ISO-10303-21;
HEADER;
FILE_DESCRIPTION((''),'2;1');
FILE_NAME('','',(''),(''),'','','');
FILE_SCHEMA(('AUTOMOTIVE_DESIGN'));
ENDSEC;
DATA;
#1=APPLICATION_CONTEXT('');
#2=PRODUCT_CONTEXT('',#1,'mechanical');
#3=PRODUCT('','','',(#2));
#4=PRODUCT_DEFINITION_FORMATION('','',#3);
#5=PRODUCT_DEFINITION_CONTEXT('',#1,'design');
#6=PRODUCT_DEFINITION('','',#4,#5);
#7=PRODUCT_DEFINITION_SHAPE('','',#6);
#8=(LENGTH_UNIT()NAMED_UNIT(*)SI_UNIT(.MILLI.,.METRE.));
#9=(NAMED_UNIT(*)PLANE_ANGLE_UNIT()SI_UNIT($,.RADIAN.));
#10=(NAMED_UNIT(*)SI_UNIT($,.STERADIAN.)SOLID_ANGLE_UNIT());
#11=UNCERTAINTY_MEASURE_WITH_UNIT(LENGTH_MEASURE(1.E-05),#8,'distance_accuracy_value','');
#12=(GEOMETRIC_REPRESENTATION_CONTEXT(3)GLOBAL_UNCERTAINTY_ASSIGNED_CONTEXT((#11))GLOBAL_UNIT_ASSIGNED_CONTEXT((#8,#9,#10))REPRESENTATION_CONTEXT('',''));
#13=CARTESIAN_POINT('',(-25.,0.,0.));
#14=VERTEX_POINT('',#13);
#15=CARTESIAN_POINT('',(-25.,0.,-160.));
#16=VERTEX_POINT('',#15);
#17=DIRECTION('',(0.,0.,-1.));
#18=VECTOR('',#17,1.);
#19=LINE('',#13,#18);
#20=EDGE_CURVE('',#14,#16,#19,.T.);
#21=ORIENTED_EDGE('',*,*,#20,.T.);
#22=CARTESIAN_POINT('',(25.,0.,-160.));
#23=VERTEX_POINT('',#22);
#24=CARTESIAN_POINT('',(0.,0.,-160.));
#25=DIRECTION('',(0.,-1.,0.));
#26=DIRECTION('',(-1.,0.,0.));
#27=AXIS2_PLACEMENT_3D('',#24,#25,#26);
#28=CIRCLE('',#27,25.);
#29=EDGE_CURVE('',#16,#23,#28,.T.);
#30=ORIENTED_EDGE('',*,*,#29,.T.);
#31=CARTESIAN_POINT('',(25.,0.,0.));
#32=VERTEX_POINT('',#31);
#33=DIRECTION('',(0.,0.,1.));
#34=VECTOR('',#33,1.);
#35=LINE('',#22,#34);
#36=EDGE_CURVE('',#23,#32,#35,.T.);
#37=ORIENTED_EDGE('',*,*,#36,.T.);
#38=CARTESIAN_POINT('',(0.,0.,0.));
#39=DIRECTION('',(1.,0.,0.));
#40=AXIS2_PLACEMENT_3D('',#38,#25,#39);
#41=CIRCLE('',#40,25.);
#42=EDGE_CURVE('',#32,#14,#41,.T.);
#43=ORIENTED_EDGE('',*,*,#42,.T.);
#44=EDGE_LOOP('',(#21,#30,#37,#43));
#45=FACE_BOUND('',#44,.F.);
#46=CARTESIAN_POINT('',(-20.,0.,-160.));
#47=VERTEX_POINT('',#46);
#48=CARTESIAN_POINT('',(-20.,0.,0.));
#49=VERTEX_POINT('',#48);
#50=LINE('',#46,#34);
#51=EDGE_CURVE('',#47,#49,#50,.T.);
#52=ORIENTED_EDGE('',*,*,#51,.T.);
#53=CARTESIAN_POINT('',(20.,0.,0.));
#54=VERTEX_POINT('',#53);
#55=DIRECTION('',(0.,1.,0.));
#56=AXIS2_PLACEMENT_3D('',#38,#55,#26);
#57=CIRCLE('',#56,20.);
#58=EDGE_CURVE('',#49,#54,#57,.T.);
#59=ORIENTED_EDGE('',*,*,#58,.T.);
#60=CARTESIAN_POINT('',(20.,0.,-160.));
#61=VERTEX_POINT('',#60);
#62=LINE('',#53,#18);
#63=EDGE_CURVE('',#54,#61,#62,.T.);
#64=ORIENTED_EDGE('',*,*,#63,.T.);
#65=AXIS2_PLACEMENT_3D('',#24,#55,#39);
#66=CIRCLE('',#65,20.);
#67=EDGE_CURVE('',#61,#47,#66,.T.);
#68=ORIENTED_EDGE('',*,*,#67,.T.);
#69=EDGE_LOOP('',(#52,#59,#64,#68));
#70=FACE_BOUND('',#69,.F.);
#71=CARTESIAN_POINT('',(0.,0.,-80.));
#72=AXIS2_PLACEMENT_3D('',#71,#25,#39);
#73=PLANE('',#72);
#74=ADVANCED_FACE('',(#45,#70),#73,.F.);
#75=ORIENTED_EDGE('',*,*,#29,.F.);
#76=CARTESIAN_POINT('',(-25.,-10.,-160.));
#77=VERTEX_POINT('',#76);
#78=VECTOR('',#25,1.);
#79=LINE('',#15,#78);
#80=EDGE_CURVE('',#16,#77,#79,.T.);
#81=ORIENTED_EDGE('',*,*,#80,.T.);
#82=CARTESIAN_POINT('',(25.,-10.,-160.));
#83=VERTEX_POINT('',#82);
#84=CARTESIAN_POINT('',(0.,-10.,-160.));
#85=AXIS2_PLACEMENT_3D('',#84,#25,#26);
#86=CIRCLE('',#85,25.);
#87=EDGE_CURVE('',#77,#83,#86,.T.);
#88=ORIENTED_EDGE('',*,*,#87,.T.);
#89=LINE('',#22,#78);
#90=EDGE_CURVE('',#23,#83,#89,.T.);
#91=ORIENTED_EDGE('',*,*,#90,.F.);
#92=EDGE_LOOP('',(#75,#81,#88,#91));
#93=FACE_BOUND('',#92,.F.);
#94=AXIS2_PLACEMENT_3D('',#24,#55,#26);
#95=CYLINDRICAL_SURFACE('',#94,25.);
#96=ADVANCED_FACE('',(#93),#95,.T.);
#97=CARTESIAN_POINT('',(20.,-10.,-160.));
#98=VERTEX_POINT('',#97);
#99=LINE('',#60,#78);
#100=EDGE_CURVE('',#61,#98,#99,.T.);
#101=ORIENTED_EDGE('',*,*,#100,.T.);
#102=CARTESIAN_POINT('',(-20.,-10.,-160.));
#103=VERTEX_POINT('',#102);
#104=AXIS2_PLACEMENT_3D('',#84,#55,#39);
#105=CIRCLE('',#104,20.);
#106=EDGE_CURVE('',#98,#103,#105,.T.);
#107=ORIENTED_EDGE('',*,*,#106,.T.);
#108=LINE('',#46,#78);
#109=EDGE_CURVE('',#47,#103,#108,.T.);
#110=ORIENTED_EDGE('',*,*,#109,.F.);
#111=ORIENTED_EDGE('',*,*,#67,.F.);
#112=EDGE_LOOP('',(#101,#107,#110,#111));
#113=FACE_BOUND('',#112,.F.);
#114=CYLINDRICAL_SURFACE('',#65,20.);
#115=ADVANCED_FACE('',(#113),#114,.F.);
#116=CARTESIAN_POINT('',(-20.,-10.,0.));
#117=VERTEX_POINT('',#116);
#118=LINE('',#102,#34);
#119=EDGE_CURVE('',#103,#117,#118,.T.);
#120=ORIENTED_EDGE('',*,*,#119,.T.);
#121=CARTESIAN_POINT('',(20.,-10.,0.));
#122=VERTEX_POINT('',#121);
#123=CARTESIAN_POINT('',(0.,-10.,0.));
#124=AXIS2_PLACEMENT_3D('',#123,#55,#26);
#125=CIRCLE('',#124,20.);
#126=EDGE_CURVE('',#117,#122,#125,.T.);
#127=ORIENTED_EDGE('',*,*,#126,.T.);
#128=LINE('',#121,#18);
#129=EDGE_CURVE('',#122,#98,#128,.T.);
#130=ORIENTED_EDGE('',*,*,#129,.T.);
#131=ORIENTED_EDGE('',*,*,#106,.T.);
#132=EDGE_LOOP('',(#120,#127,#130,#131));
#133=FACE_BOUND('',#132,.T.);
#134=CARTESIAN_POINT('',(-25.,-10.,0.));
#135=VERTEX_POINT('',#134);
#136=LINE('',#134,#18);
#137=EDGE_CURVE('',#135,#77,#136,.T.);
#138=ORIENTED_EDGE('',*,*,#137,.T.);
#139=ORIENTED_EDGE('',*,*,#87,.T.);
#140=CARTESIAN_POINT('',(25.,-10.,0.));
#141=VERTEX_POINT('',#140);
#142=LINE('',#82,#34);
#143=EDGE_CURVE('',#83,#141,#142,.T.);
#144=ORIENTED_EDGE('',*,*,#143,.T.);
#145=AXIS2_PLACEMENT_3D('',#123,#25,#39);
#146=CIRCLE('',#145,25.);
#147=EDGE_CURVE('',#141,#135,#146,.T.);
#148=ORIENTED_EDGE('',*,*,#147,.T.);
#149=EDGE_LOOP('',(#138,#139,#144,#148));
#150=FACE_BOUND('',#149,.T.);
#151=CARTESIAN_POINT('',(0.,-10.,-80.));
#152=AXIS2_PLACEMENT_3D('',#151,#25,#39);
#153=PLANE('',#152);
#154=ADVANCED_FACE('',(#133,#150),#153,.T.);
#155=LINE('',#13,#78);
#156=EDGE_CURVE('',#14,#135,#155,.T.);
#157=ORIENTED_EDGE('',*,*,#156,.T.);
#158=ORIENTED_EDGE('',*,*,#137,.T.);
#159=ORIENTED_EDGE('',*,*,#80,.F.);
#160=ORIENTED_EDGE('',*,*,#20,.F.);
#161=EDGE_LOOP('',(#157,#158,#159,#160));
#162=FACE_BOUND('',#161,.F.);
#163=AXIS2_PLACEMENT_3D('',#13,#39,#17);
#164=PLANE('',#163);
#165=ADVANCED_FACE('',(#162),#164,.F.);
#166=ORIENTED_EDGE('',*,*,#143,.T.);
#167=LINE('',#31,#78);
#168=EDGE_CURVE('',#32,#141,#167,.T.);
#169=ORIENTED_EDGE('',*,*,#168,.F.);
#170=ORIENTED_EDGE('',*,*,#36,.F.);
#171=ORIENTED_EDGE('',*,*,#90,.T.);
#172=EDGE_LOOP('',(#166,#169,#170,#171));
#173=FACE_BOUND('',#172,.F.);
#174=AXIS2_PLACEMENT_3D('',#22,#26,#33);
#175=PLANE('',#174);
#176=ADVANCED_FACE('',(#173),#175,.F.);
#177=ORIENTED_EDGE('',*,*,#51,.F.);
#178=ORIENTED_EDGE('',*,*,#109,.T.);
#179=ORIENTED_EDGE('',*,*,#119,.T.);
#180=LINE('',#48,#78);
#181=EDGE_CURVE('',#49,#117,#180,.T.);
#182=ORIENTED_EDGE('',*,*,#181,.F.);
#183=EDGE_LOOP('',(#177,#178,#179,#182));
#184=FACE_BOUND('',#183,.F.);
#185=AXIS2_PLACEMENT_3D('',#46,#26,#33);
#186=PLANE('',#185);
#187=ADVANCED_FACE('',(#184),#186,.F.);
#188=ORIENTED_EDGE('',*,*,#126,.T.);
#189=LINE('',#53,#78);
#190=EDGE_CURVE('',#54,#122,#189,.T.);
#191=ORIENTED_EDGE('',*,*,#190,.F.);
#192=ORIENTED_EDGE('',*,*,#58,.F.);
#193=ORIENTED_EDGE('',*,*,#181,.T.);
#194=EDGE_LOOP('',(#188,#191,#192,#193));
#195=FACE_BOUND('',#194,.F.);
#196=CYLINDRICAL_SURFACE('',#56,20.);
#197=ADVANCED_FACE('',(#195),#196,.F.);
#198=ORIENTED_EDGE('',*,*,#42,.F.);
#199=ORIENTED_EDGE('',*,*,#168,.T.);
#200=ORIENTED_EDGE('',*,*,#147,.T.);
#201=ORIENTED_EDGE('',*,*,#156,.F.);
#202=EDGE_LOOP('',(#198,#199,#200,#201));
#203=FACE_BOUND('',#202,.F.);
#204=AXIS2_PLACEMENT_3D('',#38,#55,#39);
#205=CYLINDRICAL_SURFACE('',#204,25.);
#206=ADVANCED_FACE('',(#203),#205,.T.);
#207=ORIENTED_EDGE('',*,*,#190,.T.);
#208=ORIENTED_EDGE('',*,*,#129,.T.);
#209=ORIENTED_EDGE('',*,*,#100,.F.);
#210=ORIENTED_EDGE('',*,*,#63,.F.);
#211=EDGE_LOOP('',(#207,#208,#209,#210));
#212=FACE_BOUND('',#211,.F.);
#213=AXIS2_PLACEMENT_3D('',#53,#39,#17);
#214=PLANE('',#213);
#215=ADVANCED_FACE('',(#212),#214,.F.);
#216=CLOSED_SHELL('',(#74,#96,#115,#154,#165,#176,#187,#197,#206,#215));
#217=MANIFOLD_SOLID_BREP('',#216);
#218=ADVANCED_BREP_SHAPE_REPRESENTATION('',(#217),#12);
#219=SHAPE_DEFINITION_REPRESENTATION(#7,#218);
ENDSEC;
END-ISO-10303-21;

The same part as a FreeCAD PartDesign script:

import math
import FreeCAD as App
import Part
import Sketcher

V = App.Vector

doc = App.newDocument("Part")
body = doc.addObject("PartDesign::Body", "Body")

sketch1 = body.newObject("Sketcher::SketchObject", "Sketch")
sketch1.AttachmentSupport = (doc.getObject("XZ_Plane"), [""])
sketch1.MapMode = "FlatFace"
sketch1.addGeometry(Part.LineSegment(V(-25, 0, 0), V(-25, -160, 0)), False)
sketch1.addGeometry(Part.ArcOfCircle(Part.Circle(V(0, -160, 0), V(0, 0, 1), 25), math.radians(180), math.radians(360)), False)
sketch1.addGeometry(Part.LineSegment(V(25, -160, 0), V(25, 0, 0)), False)
sketch1.addGeometry(Part.ArcOfCircle(Part.Circle(V(0, 0, 0), V(0, 0, 1), 25), math.radians(0), math.radians(180)), False)
sketch1.addGeometry(Part.LineSegment(V(-20, -160, 0), V(-20, 0, 0)), False)
sketch1.addGeometry(Part.ArcOfCircle(Part.Circle(V(0, 0, 0), V(0, 0, 1), 20), math.radians(0), math.radians(180)), False)
sketch1.addGeometry(Part.LineSegment(V(20, 0, 0), V(20, -160, 0)), False)
sketch1.addGeometry(Part.ArcOfCircle(Part.Circle(V(0, -160, 0), V(0, 0, 1), 20), math.radians(180), math.radians(360)), False)
sketch1.addConstraint(Sketcher.Constraint("Tangent", 0, 2, 1, 1))
sketch1.addConstraint(Sketcher.Constraint("Tangent", 1, 2, 2, 1))
sketch1.addConstraint(Sketcher.Constraint("Tangent", 2, 2, 3, 1))
sketch1.addConstraint(Sketcher.Constraint("Tangent", 3, 2, 0, 1))
sketch1.addConstraint(Sketcher.Constraint("Tangent", 4, 2, 5, 2))
sketch1.addConstraint(Sketcher.Constraint("Tangent", 5, 1, 6, 1))
sketch1.addConstraint(Sketcher.Constraint("Tangent", 6, 2, 7, 2))
sketch1.addConstraint(Sketcher.Constraint("Tangent", 7, 1, 4, 1))
sketch1.addConstraint(Sketcher.Constraint("Vertical", 0))
sketch1.addConstraint(Sketcher.Constraint("Vertical", 2))
sketch1.addConstraint(Sketcher.Constraint("Vertical", 4))
sketch1.addConstraint(Sketcher.Constraint("Vertical", 6))
sketch1.addConstraint(Sketcher.Constraint("Coincident", 3, 3, -1, 1))
sketch1.addConstraint(Sketcher.Constraint("Coincident", 5, 3, -1, 1))
sketch1.addConstraint(Sketcher.Constraint("Horizontal", 7, 3, 0, 2))
sketch1.addConstraint(Sketcher.Constraint("Radius", 1, 25.0))
sketch1.addConstraint(Sketcher.Constraint("Radius", 5, 20.0))
sketch1.addConstraint(Sketcher.Constraint("DistanceY", 0, 2, 0, 1, 160.0))
pad1 = body.newObject("PartDesign::Pad", "Pad")
pad1.Profile = sketch1
pad1.Length = 10

doc.recompute()
